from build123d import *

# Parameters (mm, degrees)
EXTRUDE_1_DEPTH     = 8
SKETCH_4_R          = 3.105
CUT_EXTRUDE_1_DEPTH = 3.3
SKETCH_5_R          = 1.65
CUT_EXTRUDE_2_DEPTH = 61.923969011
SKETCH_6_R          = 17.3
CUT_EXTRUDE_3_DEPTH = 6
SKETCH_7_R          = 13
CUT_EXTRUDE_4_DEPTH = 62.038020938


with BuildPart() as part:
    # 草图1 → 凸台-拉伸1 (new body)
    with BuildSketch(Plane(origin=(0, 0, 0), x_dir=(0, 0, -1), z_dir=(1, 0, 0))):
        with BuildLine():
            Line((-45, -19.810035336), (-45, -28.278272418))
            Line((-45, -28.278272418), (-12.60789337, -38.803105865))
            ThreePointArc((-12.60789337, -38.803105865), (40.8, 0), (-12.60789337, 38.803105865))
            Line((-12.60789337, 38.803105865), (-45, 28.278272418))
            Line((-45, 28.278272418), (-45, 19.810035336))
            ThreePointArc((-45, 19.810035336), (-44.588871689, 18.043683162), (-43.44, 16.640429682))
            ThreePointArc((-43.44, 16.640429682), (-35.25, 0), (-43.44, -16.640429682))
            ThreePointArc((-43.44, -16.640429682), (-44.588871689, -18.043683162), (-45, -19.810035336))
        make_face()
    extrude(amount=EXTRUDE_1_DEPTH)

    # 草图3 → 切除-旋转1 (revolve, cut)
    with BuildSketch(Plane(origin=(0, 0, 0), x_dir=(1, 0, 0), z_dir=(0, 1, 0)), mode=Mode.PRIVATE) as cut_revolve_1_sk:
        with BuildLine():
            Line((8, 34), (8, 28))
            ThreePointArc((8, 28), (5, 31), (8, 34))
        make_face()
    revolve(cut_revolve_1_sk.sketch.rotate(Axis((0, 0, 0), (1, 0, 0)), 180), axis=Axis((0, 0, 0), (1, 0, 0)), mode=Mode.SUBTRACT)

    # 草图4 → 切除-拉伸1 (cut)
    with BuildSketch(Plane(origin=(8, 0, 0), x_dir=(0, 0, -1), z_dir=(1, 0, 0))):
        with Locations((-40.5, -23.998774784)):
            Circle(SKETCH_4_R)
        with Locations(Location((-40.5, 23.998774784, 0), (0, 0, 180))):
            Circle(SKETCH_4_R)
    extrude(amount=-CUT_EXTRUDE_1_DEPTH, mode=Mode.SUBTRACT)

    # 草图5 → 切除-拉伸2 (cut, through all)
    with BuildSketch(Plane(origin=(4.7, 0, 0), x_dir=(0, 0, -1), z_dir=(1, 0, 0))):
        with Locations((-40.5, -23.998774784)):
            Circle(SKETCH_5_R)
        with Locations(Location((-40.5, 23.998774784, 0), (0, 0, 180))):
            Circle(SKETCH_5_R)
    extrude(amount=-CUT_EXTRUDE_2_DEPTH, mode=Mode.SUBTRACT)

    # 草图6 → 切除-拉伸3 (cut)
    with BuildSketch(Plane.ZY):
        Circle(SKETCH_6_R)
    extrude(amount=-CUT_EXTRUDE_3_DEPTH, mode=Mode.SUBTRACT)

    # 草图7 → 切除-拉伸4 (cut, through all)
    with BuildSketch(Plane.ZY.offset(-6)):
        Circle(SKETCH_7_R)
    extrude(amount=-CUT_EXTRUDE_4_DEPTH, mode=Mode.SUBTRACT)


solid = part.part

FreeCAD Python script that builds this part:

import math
import FreeCAD as App
import Part
import Sketcher
Q = App.Units.Quantity

doc = App.newDocument("Part")
body = doc.addObject("PartDesign::Body", "Body")

sketch1 = body.newObject("Sketcher::SketchObject", "Sketch")
sketch1.AttachmentSupport = (doc.getObject("YZ_Plane"), [""])
sketch1.MapMode = "FlatFace"
sketch1.addGeometry(Part.LineSegment(App.Vector(-19.8, 45, 0), App.Vector(-28.3, 45, 0)), False)
sketch1.addGeometry(Part.LineSegment(App.Vector(-28.3, 45, 0), App.Vector(-38.8, 12.6, 0)), False)
sketch1.addGeometry(Part.ArcOfCircle(Part.Circle(App.Vector(0, 0, 0), App.Vector(0, 0, 1), 40.8), math.radians(162), math.radians(378)), False)
sketch1.addGeometry(Part.LineSegment(App.Vector(38.8, 12.6, 0), App.Vector(28.3, 45, 0)), False)
sketch1.addGeometry(Part.LineSegment(App.Vector(28.3, 45, 0), App.Vector(19.8, 45, 0)), False)
sketch1.addGeometry(Part.ArcOfCircle(Part.Circle(App.Vector(19.8, 41, 0), App.Vector(0, 0, 1), 4), math.radians(90), math.radians(142)), False)
sketch1.addGeometry(Part.ArcOfCircle(Part.Circle(App.Vector(0, 56.2, 0), App.Vector(0, 0, 1), 21), math.radians(-142), math.radians(-38)), False)
sketch1.addGeometry(Part.ArcOfCircle(Part.Circle(App.Vector(-19.8, 41, 0), App.Vector(0, 0, 1), 4), math.radians(38), math.radians(90)), False)
sketch1.addConstraint(Sketcher.Constraint("Coincident", 0, 2, 1, 1))
sketch1.addConstraint(Sketcher.Constraint("Tangent", 1, 2, 2, 1))
sketch1.addConstraint(Sketcher.Constraint("Tangent", 2, 2, 3, 1))
sketch1.addConstraint(Sketcher.Constraint("Coincident", 3, 2, 4, 1))
sketch1.addConstraint(Sketcher.Constraint("Tangent", 4, 2, 5, 1))
sketch1.addConstraint(Sketcher.Constraint("Tangent", 5, 2, 6, 2))
sketch1.addConstraint(Sketcher.Constraint("Tangent", 6, 1, 7, 1))
sketch1.addConstraint(Sketcher.Constraint("Tangent", 7, 2, 0, 1))
sketch1.addConstraint(Sketcher.Constraint("Horizontal", 0))
sketch1.addConstraint(Sketcher.Constraint("Horizontal", 4))
sketch1.addConstraint(Sketcher.Constraint("Coincident", 2, 3, -1, 1))
sketch1.addConstraint(Sketcher.Constraint("Equal", 5, 7))
sketch1.addConstraint(Sketcher.Constraint("Symmetric", 5, 3, 7, 3, -2))
sketch1.addConstraint(Sketcher.Constraint("Horizontal", 1, 2, 2, 2))
sketch1.addConstraint(Sketcher.Constraint("Radius", 5, Q("4 mm")))
sketch1.addConstraint(Sketcher.Constraint("Radius", 6, Q("21 mm")))
sketch1.addConstraint(Sketcher.Constraint("Radius", 2, Q("40.8 mm")))
sketch1.addConstraint(Sketcher.Constraint("Angle", 1, Q("-108 deg")))
sketch1.addConstraint(Sketcher.Constraint("DistanceY", -1, 1, 5, 3, Q("41 mm")))
sketch1.addConstraint(Sketcher.Constraint("DistanceY", -1, 1, 6, 3, Q("56.25 mm")))
pad1 = body.newObject("PartDesign::Pad", "Pad")
pad1.Profile = sketch1
pad1.Length = 8

sketch2 = body.newObject("Sketcher::SketchObject", "Sketch001")
sketch2.AttachmentSupport = (doc.getObject("XZ_Plane"), [""])
sketch2.MapMode = "FlatFace"
sketch2.addGeometry(Part.LineSegment(App.Vector(8, -28, 0), App.Vector(8, -34, 0)), False)
sketch2.addGeometry(Part.ArcOfCircle(Part.Circle(App.Vector(8, -31, 0), App.Vector(0, 0, 1), 3), math.radians(90), math.radians(270)), False)
sketch2.addConstraint(Sketcher.Constraint("Coincident", 0, 1, 1, 1))
sketch2.addConstraint(Sketcher.Constraint("Coincident", 1, 2, 0, 2))
sketch2.addConstraint(Sketcher.Constraint("Vertical", 0))
sketch2.addConstraint(Sketcher.Constraint("Vertical", 1, 3, 0, 1))
sketch2.addConstraint(Sketcher.Constraint("Radius", 1, Q("3 mm")))
sketch2.addConstraint(Sketcher.Constraint("DistanceX", -1, 1, 1, 3, Q("8 mm")))
sketch2.addConstraint(Sketcher.Constraint("DistanceY", 1, 3, -1, 1, Q("31 mm")))
groove = body.newObject("PartDesign::Groove", "Groove")
groove.Profile = sketch2
groove.ReferenceAxis = (sketch2, ["H_Axis"])
groove.Angle = 360

sketch3 = body.newObject("Sketcher::SketchObject", "Sketch002")
sketch3.AttachmentSupport = (doc.getObject("YZ_Plane"), [""])
sketch3.MapMode = "FlatFace"
sketch3.AttachmentOffset = App.Placement(App.Vector(0, 0, 8), App.Rotation())
sketch3.addGeometry(Part.Circle(App.Vector(-24, 40.5, 0), App.Vector(0, 0, 1), 3.1), False)
sketch3.addGeometry(Part.Circle(App.Vector(24, 40.5, 0), App.Vector(0, 0, 1), 3.1), False)
sketch3.addConstraint(Sketcher.Constraint("Equal", 0, 1))
sketch3.addConstraint(Sketcher.Constraint("Symmetric", 0, 3, 1, 3, -2))
sketch3.addConstraint(Sketcher.Constraint("Diameter", 0, Q("6.21 mm")))
sketch3.addConstraint(Sketcher.Constraint("DistanceY", -1, 1, 0, 3, Q("40.5 mm")))
sketch3.addConstraint(Sketcher.Constraint("DistanceX", 0, 3, 1, 3, Q("47.99755 mm")))
pocket1 = body.newObject("PartDesign::Pocket", "Pocket")
pocket1.Profile = sketch3
pocket1.Length = 3.3

sketch4 = body.newObject("Sketcher::SketchObject", "Sketch003")
sketch4.AttachmentSupport = (doc.getObject("YZ_Plane"), [""])
sketch4.MapMode = "FlatFace"
sketch4.AttachmentOffset = App.Placement(App.Vector(0, 0, 4.7), App.Rotation())
sketch4.addGeometry(Part.Circle(App.Vector(-24, 40.5, 0), App.Vector(0, 0, 1), 1.6), False)
sketch4.addGeometry(Part.Circle(App.Vector(24, 40.5, 0), App.Vector(0, 0, 1), 1.6), False)
sketch4.addConstraint(Sketcher.Constraint("Equal", 0, 1))
sketch4.addConstraint(Sketcher.Constraint("Symmetric", 0, 3, 1, 3, -2))
sketch4.addConstraint(Sketcher.Constraint("Diameter", 0, Q("3.3 mm")))
sketch4.addConstraint(Sketcher.Constraint("DistanceY", -1, 1, 0, 3, Q("40.5 mm")))
sketch4.addConstraint(Sketcher.Constraint("DistanceX", 0, 3, 1, 3, Q("47.99755 mm")))
pocket2 = body.newObject("PartDesign::Pocket", "Pocket001")
pocket2.Profile = sketch4
pocket2.Type = "ThroughAll"

sketch5 = body.newObject("Sketcher::SketchObject", "Sketch004")
sketch5.AttachmentSupport = (doc.getObject("YZ_Plane"), [""])
sketch5.MapMode = "FlatFace"
sketch5.addGeometry(Part.Circle(App.Vector(0, 0, 0), App.Vector(0, 0, 1), 17), False)
sketch5.addConstraint(Sketcher.Constraint("Coincident", 0, 3, -1, 1))
sketch5.addConstraint(Sketcher.Constraint("Diameter", 0, Q("34.6 mm")))
pocket3 = body.newObject("PartDesign::Pocket", "Pocket002")
pocket3.Profile = sketch5
pocket3.Length = 6
pocket3.Reversed = True

sketch6 = body.newObject("Sketcher::SketchObject", "Sketch005")
sketch6.AttachmentSupport = (doc.getObject("YZ_Plane"), [""])
sketch6.MapMode = "FlatFace"
sketch6.AttachmentOffset = App.Placement(App.Vector(0, 0, 6), App.Rotation())
sketch6.addGeometry(Part.Circle(App.Vector(0, 0, 0), App.Vector(0, 0, 1), 13), False)
sketch6.addConstraint(Sketcher.Constraint("Coincident", 0, 3, -1, 1))
sketch6.addConstraint(Sketcher.Constraint("Diameter", 0, Q("26 mm")))
pocket4 = body.newObject("PartDesign::Pocket", "Pocket003")
pocket4.Profile = sketch6
pocket4.Type = "ThroughAll"
pocket4.Reversed = True

doc.recompute()
